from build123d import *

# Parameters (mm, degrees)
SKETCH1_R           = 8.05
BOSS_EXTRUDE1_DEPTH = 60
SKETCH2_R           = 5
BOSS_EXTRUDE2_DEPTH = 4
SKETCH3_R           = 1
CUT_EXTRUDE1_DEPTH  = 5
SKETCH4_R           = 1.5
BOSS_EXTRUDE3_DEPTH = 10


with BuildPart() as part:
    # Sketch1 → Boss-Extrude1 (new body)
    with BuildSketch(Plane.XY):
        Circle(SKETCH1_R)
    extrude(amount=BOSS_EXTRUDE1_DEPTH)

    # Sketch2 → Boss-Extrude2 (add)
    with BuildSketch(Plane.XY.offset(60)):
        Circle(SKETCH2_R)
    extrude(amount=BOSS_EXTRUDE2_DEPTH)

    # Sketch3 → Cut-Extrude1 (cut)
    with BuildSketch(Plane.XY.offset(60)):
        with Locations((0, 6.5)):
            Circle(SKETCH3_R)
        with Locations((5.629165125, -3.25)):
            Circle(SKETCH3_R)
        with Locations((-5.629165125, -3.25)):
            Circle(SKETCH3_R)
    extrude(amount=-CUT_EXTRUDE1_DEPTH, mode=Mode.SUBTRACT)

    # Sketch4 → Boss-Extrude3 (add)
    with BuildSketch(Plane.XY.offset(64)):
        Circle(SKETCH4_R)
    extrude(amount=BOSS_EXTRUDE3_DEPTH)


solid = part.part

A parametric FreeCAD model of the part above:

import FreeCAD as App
import Part
import Sketcher

V = App.Vector

doc = App.newDocument("Part")
params = doc.addObject("Spreadsheet::Sheet", "Params")
for row, (alias, value) in enumerate([
    ("sketch1_diameter", "16.1 mm"),
    ("pad1_length", "60 mm"),
    ("sketch2_diameter", "10 mm"),
    ("pad2_length", "4 mm"),
    ("sketch3_diameter", "2 mm"),
    ("pocket1_length", "5 mm"),
    ("sketch4_diameter", "3 mm"),
    ("pad3_length", "10 mm"),
], start=1):
    params.set(f"A{row}", alias)
    params.set(f"B{row}", "=" + value)
    params.setAlias(f"B{row}", alias)

body = doc.addObject("PartDesign::Body", "Body")

# Sketch on XY plane
sketch1 = body.newObject("Sketcher::SketchObject", "Sketch")
sketch1.AttachmentSupport = (doc.getObject("XY_Plane"), [""])
sketch1.MapMode = "FlatFace"
sketch1.addGeometry(Part.Circle(V(0, 0, 0), V(0, 0, 1), 8), False)
sketch1.addConstraint([
    Sketcher.Constraint("Coincident", 0, 3, -1, 1),
    Sketcher.Constraint("Diameter", 0, 16.1),
])
sketch1.setExpression("Constraints[1]", "Params.sketch1_diameter")
pad1 = body.newObject("PartDesign::Pad", "Pad")
pad1.Profile = sketch1
pad1.setExpression("Length", "Params.pad1_length")

# Sketch on XY plane
sketch2 = body.newObject("Sketcher::SketchObject", "Sketch001")
sketch2.AttachmentSupport = (doc.getObject("XY_Plane"), [""])
sketch2.MapMode = "FlatFace"
sketch2.AttachmentOffset = App.Placement(V(0, 0, 60), App.Rotation())
sketch2.addGeometry(Part.Circle(V(0, 0, 0), V(0, 0, 1), 5), False)
sketch2.addConstraint([
    Sketcher.Constraint("Coincident", 0, 3, -1, 1),
    Sketcher.Constraint("Diameter", 0, 10.0),
])
sketch2.setExpression("Constraints[1]", "Params.sketch2_diameter")
pad2 = body.newObject("PartDesign::Pad", "Pad001")
pad2.Profile = sketch2
pad2.setExpression("Length", "Params.pad2_length")

# Sketch on XY plane
sketch3 = body.newObject("Sketcher::SketchObject", "Sketch002")
sketch3.AttachmentSupport = (doc.getObject("XY_Plane"), [""])
sketch3.MapMode = "FlatFace"
sketch3.AttachmentOffset = App.Placement(V(0, 0, 60), App.Rotation())
sketch3.addGeometry([
    Part.Circle(V(0, 6.5, 0), V(0, 0, 1), 1),
    Part.Circle(V(5.6, -3.2, 0), V(0, 0, 1), 1),
    Part.Circle(V(-5.6, -3.2, 0), V(0, 0, 1), 1),
], False)
sketch3.addConstraint([
    Sketcher.Constraint("Equal", 0, 1),
    Sketcher.Constraint("Equal", 1, 2),
    Sketcher.Constraint("Symmetric", 1, 3, 2, 3, -2),
    Sketcher.Constraint("PointOnObject", 0, 3, -2),
    Sketcher.Constraint("Diameter", 0, 2.0),
    Sketcher.Constraint("DistanceY", -1, 1, 0, 3, 6.5),
    Sketcher.Constraint("DistanceY", 1, 3, -1, 1, 3.25),
    Sketcher.Constraint("DistanceX", 2, 3, 1, 3, 11.25833),
])
sketch3.setExpression("Constraints[4]", "Params.sketch3_diameter")
pocket1 = body.newObject("PartDesign::Pocket", "Pocket")
pocket1.Profile = sketch3
pocket1.setExpression("Length", "Params.pocket1_length")

# Sketch on XY plane
sketch4 = body.newObject("Sketcher::SketchObject", "Sketch003")
sketch4.AttachmentSupport = (doc.getObject("XY_Plane"), [""])
sketch4.MapMode = "FlatFace"
sketch4.AttachmentOffset = App.Placement(V(0, 0, 64), App.Rotation())
sketch4.addGeometry(Part.Circle(V(0, 0, 0), V(0, 0, 1), 1.5), False)
sketch4.addConstraint([
    Sketcher.Constraint("Coincident", 0, 3, -1, 1),
    Sketcher.Constraint("Diameter", 0, 3.0),
])
sketch4.setExpression("Constraints[1]", "Params.sketch4_diameter")
pad3 = body.newObject("PartDesign::Pad", "Pad002")
pad3.Profile = sketch4
pad3.setExpression("Length", "Params.pad3_length")

doc.recompute()
